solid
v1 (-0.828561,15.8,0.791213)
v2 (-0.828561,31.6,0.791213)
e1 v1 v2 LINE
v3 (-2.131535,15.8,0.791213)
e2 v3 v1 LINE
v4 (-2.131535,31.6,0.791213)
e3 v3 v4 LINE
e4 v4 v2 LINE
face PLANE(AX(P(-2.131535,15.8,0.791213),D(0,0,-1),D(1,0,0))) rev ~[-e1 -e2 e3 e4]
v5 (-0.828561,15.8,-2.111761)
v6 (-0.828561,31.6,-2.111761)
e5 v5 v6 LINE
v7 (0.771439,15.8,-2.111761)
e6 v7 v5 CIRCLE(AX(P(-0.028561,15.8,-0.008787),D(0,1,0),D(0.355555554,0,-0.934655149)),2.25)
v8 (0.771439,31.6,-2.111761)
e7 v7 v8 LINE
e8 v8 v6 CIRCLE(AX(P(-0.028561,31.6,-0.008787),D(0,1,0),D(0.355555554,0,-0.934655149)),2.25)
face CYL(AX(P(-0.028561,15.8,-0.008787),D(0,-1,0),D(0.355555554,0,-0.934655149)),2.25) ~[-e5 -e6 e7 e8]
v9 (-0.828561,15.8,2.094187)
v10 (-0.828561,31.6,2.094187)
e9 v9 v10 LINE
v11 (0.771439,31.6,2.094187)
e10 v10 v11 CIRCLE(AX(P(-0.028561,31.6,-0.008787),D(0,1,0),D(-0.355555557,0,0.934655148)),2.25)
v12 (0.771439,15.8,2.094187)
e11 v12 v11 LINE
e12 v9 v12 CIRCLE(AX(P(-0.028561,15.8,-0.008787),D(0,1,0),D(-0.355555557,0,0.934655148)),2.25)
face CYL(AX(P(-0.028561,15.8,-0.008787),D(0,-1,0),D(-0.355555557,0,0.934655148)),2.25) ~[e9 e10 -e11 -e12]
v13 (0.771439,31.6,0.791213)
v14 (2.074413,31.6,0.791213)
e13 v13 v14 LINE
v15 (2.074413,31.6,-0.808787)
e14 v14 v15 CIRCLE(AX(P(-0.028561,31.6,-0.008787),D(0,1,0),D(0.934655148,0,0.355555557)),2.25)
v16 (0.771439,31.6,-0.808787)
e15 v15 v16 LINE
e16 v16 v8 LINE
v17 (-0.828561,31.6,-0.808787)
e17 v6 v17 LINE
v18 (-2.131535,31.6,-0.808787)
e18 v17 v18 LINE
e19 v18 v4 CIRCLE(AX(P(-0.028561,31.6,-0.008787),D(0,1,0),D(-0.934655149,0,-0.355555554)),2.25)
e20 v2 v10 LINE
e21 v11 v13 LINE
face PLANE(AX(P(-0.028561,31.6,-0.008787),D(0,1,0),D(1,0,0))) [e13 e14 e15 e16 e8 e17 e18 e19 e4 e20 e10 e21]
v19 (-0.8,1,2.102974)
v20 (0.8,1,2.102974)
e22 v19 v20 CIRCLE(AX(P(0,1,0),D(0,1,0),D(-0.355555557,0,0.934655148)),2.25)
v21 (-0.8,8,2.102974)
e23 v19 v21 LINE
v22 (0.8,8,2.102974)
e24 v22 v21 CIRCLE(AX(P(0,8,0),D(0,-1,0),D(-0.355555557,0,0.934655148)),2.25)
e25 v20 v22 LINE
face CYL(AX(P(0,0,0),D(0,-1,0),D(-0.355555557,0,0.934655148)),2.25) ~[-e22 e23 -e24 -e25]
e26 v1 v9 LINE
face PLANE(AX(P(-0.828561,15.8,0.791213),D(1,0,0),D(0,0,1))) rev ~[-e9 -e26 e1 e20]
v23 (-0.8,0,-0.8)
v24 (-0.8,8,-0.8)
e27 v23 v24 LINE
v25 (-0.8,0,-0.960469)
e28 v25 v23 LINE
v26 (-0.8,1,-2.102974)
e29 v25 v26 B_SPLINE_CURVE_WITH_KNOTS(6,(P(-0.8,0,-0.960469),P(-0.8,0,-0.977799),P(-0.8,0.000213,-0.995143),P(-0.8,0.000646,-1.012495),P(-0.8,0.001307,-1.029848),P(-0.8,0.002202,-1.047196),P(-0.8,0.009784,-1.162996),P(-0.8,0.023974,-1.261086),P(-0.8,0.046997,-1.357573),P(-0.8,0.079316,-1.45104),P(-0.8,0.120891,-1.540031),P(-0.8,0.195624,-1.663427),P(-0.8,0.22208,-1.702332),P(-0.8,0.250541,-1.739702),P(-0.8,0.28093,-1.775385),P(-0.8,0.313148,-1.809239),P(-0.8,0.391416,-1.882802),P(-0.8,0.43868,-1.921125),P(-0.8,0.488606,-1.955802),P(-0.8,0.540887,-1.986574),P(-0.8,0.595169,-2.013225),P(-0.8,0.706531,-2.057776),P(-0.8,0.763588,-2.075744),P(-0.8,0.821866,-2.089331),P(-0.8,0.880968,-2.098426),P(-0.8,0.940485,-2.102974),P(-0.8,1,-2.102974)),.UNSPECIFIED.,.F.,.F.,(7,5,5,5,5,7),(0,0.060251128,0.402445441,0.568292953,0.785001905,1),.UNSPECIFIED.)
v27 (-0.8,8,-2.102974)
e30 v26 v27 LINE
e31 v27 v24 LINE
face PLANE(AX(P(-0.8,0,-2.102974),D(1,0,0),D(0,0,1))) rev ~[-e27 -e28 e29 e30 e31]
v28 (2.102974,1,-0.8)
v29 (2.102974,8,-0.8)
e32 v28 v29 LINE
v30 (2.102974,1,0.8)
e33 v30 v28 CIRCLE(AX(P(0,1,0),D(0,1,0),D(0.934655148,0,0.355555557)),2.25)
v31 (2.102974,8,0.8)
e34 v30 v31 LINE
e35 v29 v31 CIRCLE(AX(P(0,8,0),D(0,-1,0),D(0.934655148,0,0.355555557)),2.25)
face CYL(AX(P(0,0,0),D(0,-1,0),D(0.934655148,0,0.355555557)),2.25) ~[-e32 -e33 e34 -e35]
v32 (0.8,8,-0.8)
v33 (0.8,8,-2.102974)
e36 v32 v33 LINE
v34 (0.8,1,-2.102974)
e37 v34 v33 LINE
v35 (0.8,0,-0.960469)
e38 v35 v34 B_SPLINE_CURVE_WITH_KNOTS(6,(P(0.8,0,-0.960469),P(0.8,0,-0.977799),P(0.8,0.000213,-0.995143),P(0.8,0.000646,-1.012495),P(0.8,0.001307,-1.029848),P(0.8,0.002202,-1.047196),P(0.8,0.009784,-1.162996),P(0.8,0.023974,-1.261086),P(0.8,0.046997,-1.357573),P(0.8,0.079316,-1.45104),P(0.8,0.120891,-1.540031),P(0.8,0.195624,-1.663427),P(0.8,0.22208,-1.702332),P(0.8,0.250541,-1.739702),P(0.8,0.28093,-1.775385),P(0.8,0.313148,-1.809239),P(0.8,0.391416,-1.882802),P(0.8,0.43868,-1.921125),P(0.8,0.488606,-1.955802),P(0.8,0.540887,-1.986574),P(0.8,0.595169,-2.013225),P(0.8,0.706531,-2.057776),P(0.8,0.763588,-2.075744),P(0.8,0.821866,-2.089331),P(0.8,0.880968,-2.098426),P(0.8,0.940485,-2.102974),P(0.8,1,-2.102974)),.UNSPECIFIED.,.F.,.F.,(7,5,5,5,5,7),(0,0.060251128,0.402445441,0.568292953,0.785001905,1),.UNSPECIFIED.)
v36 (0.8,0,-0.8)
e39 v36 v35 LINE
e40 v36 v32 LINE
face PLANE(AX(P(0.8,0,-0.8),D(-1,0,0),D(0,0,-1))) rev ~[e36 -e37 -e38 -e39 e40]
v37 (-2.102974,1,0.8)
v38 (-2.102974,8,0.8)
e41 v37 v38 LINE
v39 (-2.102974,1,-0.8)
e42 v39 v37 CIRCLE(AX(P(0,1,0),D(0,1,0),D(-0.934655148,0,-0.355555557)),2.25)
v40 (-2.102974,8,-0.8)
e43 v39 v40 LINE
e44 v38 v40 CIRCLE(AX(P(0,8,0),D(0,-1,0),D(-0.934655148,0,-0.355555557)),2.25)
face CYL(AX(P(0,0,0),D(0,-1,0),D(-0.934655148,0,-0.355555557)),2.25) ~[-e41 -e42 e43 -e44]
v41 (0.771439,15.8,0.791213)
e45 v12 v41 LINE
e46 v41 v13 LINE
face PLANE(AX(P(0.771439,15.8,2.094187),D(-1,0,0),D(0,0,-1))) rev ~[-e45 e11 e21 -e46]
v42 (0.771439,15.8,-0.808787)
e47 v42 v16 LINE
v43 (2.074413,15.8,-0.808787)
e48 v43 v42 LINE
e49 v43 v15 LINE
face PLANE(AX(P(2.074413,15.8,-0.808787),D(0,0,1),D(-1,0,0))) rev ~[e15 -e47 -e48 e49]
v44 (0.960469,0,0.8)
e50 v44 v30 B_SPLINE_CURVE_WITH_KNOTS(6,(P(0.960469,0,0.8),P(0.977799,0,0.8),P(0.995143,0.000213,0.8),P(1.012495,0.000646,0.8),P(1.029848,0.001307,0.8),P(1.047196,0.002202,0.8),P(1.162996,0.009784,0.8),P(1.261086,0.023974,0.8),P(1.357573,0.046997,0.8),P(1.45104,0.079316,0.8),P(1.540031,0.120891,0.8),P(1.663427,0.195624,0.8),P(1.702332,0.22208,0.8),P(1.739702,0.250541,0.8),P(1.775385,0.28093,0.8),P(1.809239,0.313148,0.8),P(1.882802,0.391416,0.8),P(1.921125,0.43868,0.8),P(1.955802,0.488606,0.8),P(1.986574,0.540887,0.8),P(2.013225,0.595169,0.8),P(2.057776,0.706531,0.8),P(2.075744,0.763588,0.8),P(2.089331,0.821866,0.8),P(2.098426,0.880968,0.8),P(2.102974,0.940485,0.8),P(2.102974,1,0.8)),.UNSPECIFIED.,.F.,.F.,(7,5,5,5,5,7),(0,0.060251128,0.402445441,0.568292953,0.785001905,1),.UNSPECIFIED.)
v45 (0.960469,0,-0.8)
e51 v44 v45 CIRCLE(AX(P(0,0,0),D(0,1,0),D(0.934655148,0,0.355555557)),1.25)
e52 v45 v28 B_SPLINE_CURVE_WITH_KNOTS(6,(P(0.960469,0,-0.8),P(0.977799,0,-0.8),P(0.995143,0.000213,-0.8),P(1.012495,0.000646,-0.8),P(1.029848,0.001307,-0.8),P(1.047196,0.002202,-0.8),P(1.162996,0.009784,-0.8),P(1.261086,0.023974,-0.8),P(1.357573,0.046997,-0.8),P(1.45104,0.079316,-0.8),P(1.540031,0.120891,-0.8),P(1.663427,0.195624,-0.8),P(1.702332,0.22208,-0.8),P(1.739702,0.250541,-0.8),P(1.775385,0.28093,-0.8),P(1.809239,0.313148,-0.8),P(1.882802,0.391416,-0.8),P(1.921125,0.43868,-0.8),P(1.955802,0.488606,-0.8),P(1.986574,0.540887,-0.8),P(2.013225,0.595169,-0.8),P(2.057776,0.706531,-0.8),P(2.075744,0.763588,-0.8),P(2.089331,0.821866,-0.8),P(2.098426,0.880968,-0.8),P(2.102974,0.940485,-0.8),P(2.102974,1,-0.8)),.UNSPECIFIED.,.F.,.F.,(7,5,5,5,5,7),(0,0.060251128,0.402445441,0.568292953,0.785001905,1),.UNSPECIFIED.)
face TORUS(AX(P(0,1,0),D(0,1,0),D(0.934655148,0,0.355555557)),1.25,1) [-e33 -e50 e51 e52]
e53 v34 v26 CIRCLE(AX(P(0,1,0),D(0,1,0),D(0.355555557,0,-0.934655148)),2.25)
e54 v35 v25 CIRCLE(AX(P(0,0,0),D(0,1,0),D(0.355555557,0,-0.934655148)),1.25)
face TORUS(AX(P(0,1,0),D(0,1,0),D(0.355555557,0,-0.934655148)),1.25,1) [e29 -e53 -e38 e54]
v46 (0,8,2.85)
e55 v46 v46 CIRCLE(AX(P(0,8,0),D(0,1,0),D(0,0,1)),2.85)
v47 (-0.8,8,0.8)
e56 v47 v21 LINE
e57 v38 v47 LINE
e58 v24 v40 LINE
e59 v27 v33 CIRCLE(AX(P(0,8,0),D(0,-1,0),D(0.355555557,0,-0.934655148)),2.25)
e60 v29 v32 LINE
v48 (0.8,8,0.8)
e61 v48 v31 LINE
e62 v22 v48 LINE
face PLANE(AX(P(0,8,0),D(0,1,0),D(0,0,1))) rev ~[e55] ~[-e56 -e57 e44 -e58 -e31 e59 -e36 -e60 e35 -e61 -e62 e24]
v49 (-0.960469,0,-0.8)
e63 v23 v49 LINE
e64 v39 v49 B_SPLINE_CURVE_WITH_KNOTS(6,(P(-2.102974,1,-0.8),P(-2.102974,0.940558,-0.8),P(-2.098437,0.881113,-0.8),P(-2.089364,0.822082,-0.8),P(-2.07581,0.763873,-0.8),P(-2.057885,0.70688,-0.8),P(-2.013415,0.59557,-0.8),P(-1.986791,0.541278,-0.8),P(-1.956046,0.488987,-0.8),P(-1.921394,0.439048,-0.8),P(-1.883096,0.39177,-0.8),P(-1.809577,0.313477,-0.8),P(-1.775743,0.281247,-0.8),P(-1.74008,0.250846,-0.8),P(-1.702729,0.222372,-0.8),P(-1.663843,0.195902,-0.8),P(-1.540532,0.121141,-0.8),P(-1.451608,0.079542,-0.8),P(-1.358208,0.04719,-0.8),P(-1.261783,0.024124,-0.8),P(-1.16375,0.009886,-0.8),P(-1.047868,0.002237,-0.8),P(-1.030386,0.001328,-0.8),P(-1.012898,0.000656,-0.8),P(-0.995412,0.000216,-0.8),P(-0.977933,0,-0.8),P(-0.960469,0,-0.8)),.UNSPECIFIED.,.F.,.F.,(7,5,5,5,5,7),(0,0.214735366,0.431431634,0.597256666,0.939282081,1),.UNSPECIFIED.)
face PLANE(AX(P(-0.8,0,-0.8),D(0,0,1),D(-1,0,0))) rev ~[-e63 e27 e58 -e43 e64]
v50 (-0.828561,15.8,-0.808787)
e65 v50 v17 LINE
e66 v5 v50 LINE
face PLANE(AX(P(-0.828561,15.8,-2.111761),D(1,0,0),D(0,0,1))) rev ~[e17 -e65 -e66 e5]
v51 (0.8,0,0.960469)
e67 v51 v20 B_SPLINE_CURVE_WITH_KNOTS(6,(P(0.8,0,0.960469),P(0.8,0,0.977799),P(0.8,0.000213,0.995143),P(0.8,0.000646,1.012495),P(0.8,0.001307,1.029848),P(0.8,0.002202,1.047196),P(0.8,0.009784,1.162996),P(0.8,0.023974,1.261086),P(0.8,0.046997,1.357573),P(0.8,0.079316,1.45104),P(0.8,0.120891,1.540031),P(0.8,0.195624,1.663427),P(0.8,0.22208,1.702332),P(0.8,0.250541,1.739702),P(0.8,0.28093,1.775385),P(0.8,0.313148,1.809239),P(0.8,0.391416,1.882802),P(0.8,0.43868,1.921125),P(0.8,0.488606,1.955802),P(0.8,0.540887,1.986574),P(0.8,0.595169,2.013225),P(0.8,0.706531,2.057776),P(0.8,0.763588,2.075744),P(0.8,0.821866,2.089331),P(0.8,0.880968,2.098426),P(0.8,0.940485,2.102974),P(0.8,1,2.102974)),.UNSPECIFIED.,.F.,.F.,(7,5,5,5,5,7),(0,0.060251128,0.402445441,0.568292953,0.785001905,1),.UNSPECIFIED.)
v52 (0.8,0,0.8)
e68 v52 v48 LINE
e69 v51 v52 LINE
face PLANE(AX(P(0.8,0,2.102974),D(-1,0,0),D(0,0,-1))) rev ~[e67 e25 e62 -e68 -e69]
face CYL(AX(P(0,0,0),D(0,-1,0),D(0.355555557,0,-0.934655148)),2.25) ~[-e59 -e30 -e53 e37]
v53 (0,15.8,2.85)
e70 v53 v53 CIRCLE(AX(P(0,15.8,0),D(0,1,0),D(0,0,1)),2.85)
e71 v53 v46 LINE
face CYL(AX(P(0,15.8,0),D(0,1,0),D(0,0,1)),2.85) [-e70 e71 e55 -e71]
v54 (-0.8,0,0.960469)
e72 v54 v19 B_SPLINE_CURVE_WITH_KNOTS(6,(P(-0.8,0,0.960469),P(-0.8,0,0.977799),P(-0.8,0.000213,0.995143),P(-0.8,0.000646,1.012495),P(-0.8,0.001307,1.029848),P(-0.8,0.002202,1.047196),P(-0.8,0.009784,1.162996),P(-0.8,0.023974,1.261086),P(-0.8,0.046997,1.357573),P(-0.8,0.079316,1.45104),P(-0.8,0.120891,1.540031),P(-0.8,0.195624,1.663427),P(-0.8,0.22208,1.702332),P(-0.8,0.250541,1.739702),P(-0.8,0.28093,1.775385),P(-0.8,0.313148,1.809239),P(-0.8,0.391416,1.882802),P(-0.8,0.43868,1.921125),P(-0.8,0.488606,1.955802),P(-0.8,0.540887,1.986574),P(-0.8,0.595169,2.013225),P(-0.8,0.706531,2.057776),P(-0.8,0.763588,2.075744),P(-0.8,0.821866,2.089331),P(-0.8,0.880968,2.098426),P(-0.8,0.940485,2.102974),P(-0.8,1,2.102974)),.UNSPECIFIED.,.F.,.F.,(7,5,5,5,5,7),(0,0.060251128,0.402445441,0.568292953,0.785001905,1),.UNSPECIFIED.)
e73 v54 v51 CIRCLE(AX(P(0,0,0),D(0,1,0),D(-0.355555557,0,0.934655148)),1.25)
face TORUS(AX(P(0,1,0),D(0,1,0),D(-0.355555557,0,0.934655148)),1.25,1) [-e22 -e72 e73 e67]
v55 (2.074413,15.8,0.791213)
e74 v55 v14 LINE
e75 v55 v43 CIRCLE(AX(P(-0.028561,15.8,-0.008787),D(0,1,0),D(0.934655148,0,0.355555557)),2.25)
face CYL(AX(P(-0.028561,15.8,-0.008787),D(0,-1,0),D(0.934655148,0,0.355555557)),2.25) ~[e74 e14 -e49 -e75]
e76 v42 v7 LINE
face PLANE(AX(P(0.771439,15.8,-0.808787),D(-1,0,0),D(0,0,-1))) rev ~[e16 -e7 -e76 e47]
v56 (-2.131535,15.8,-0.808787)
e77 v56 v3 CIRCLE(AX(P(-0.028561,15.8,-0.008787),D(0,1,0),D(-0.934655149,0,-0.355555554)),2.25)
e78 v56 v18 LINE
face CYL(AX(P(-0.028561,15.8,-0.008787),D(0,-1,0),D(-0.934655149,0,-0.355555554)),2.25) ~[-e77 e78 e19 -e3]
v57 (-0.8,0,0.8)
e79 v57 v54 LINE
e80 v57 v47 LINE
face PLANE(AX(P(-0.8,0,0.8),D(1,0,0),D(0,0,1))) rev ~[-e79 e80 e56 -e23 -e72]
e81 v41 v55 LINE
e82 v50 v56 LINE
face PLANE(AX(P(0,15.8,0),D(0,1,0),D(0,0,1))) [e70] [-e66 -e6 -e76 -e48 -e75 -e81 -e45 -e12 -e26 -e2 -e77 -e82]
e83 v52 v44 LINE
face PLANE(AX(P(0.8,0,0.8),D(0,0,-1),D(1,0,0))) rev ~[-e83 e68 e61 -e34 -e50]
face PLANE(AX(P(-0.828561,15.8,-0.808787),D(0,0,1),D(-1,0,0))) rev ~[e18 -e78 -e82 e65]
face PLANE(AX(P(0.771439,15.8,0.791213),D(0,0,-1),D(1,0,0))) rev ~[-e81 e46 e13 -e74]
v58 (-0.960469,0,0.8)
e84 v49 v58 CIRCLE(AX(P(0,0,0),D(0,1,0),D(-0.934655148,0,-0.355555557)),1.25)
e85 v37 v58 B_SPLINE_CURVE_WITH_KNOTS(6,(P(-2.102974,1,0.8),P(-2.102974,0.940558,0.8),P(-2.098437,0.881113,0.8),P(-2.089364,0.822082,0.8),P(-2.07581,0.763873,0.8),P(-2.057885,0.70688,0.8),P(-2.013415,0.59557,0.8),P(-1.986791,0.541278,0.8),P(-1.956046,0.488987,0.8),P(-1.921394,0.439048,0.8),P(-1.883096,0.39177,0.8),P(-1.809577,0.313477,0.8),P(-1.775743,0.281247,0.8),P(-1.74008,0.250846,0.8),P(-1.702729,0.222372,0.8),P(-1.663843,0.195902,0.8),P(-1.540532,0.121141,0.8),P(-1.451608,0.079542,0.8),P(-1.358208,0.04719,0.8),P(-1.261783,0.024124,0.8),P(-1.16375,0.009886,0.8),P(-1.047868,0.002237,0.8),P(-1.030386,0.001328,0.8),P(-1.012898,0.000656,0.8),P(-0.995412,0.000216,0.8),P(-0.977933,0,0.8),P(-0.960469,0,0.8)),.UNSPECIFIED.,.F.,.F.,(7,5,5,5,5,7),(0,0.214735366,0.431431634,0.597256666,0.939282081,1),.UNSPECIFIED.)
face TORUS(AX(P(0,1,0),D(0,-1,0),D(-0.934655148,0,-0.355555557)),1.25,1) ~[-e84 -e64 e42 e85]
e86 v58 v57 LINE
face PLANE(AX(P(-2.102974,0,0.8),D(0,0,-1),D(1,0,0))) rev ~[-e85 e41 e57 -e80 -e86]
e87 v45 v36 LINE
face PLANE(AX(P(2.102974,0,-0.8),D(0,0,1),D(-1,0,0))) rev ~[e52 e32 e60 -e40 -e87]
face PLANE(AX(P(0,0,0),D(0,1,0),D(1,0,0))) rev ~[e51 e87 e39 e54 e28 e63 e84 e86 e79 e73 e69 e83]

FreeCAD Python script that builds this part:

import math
import FreeCAD as App
import Part
import Sketcher
from FreeCAD import Vector


def edges_at(feature, points):
    """Names of the edges that pass closest to the given points."""
    edges = feature.Shape.Edges
    near = lambda p: min(range(len(edges)), key=lambda i: edges[i].distToShape(Part.Vertex(*p))[0])
    return sorted({f"Edge{near(p) + 1}" for p in points})

doc = App.newDocument("Part")
body = doc.addObject("PartDesign::Body", "Body")

sketch1 = body.newObject("Sketcher::SketchObject", "Sketch")
sketch1.AttachmentSupport = (doc.getObject("XZ_Plane"), [""])
sketch1.MapMode = "FlatFace"
sketch1.addGeometry([
    Part.LineSegment(Vector(-0.8, 0.8, 0), Vector(-0.8, 2.1, 0)),
    Part.ArcOfCircle(Part.Circle(Vector(0, 0, 0), Vector(0, 0, 1), 2.2), math.radians(69), math.radians(111)),
    Part.LineSegment(Vector(0.8, 2.1, 0), Vector(0.8, 0.8, 0)),
    Part.LineSegment(Vector(0.8, 0.8, 0), Vector(2.1, 0.8, 0)),
    Part.ArcOfCircle(Part.Circle(Vector(0, 0, 0), Vector(0, 0, 1), 2.2), math.radians(-21), math.radians(21)),
    Part.LineSegment(Vector(2.1, -0.8, 0), Vector(0.8, -0.8, 0)),
    Part.LineSegment(Vector(0.8, -0.8, 0), Vector(0.8, -2.1, 0)),
    Part.ArcOfCircle(Part.Circle(Vector(0, 0, 0), Vector(0, 0, 1), 2.2), math.radians(-111), math.radians(-69)),
    Part.LineSegment(Vector(-0.8, -2.1, 0), Vector(-0.8, -0.8, 0)),
    Part.LineSegment(Vector(-0.8, -0.8, 0), Vector(-2.1, -0.8, 0)),
    Part.ArcOfCircle(Part.Circle(Vector(0, 0, 0), Vector(0, 0, 1), 2.2), math.radians(159), math.radians(201)),
    Part.LineSegment(Vector(-2.1, 0.8, 0), Vector(-0.8, 0.8, 0)),
], False)
sketch1.addConstraint([
    Sketcher.Constraint("Coincident", 0, 2, 1, 2),
    Sketcher.Constraint("Coincident", 1, 1, 2, 1),
    Sketcher.Constraint("Coincident", 2, 2, 3, 1),
    Sketcher.Constraint("Coincident", 3, 2, 4, 2),
    Sketcher.Constraint("Coincident", 4, 1, 5, 1),
    Sketcher.Constraint("Coincident", 5, 2, 6, 1),
    Sketcher.Constraint("Coincident", 6, 2, 7, 2),
    Sketcher.Constraint("Coincident", 7, 1, 8, 1),
    Sketcher.Constraint("Coincident", 8, 2, 9, 1),
    Sketcher.Constraint("Coincident", 9, 2, 10, 2),
    Sketcher.Constraint("Coincident", 10, 1, 11, 1),
    Sketcher.Constraint("Coincident", 11, 2, 0, 1),
    Sketcher.Constraint("Vertical", 0),
    Sketcher.Constraint("Vertical", 2),
    Sketcher.Constraint("Horizontal", 3),
    Sketcher.Constraint("Horizontal", 5),
    Sketcher.Constraint("Vertical", 6),
    Sketcher.Constraint("Vertical", 8),
    Sketcher.Constraint("Horizontal", 9),
    Sketcher.Constraint("Horizontal", 11),
    Sketcher.Constraint("Coincident", 1, 3, -1, 1),
    Sketcher.Constraint("Coincident", 4, 3, -1, 1),
    Sketcher.Constraint("Coincident", 7, 3, -1, 1),
    Sketcher.Constraint("Coincident", 10, 3, -1, 1),
    Sketcher.Constraint("Equal", 1, 4),
    Sketcher.Constraint("Equal", 4, 7),
    Sketcher.Constraint("Equal", 7, 10),
    Sketcher.Constraint("Symmetric", 2, 2, 8, 2, -1, 1),
    Sketcher.Constraint("Symmetric", 5, 2, 11, 2, -1, 1),
    Sketcher.Constraint("Symmetric", 5, 2, 8, 2, -2),
    Sketcher.Constraint("Equal", 11, 0),
    Sketcher.Constraint("Radius", 1, 2.25),
    Sketcher.Constraint("DistanceX", 0, 2, -1, 1, 0.8),
])
pad1 = body.newObject("PartDesign::Pad", "Pad")
pad1.Profile = sketch1
pad1.Length = 15.8
pad1.Reversed = True
doc.recompute()

fillet = body.newObject("PartDesign::Fillet", "Fillet")
fillet.Base = (pad1, edges_at(pad1, [(-2.25, 0, 0)]))
fillet.Radius = 1
doc.recompute()

fillet2 = body.newObject("PartDesign::Fillet", "Fillet001")
fillet2.Base = (fillet, edges_at(fillet, [(0, 0, 2.25)]))
fillet2.Radius = 1
doc.recompute()

fillet3 = body.newObject("PartDesign::Fillet", "Fillet002")
fillet3.Base = (fillet2, edges_at(fillet2, [(2.25, 0, 0)]))
fillet3.Radius = 1
doc.recompute()

fillet4 = body.newObject("PartDesign::Fillet", "Fillet003")
fillet4.Base = (fillet3, edges_at(fillet3, [(0, 0, -2.25)]))
fillet4.Radius = 1

sketch2 = body.newObject("Sketcher::SketchObject", "Sketch001")
sketch2.AttachmentSupport = (doc.getObject("XZ_Plane"), [""])
sketch2.MapMode = "FlatFace"
sketch2.AttachmentOffset = App.Placement(Vector(0, 0, -15.8), App.Rotation())
sketch2.addGeometry(Part.Circle(Vector(0, 0, 0), Vector(0, 0, 1), 2.9), False)
sketch2.addConstraint([
    Sketcher.Constraint("Coincident", 0, 3, -1, 1),
    Sketcher.Constraint("Diameter", 0, 5.7),
])
pad2 = body.newObject("PartDesign::Pad", "Pad001")
pad2.Profile = sketch2
pad2.Length = 7.8

sketch3 = body.newObject("Sketcher::SketchObject", "Sketch002")
sketch3.AttachmentSupport = (doc.getObject("XZ_Plane"), [""])
sketch3.MapMode = "FlatFace"
sketch3.AttachmentOffset = App.Placement(Vector(0, 0, -15.8), App.Rotation())
sketch3.addGeometry([
    Part.LineSegment(Vector(-0.8, 0.8, 0), Vector(-0.8, 2.1, 0)),
    Part.ArcOfCircle(Part.Circle(Vector(0, 0, 0), Vector(0, 0, 1), 2.2), math.radians(69), math.radians(111)),
    Part.LineSegment(Vector(0.8, 2.1, 0), Vector(0.8, 0.8, 0)),
    Part.LineSegment(Vector(0.8, 0.8, 0), Vector(2.1, 0.8, 0)),
    Part.ArcOfCircle(Part.Circle(Vector(0, 0, 0), Vector(0, 0, 1), 2.2), math.radians(-21), math.radians(21)),
    Part.LineSegment(Vector(2.1, -0.8, 0), Vector(0.8, -0.8, 0)),
    Part.LineSegment(Vector(0.8, -0.8, 0), Vector(0.8, -2.1, 0)),
    Part.ArcOfCircle(Part.Circle(Vector(0, 0, 0), Vector(0, 0, 1), 2.3), math.radians(-111), math.radians(-69)),
    Part.LineSegment(Vector(-0.8, -2.1, 0), Vector(-0.8, -0.8, 0)),
    Part.LineSegment(Vector(-0.8, -0.8, 0), Vector(-2.1, -0.8, 0)),
    Part.ArcOfCircle(Part.Circle(Vector(0, 0, 0), Vector(0, 0, 1), 2.3), math.radians(159), math.radians(201)),
    Part.LineSegment(Vector(-2.1, 0.8, 0), Vector(-0.8, 0.8, 0)),
], False)
sketch3.addConstraint([
    Sketcher.Constraint("Coincident", 0, 2, 1, 2),
    Sketcher.Constraint("Coincident", 1, 1, 2, 1),
    Sketcher.Constraint("Coincident", 2, 2, 3, 1),
    Sketcher.Constraint("Coincident", 3, 2, 4, 2),
    Sketcher.Constraint("Coincident", 4, 1, 5, 1),
    Sketcher.Constraint("Coincident", 5, 2, 6, 1),
    Sketcher.Constraint("Coincident", 6, 2, 7, 2),
    Sketcher.Constraint("Coincident", 7, 1, 8, 1),
    Sketcher.Constraint("Coincident", 8, 2, 9, 1),
    Sketcher.Constraint("Coincident", 9, 2, 10, 2),
    Sketcher.Constraint("Coincident", 10, 1, 11, 1),
    Sketcher.Constraint("Coincident", 11, 2, 0, 1),
    Sketcher.Constraint("Vertical", 0),
    Sketcher.Constraint("Vertical", 2),
    Sketcher.Constraint("Horizontal", 3),
    Sketcher.Constraint("Horizontal", 5),
    Sketcher.Constraint("Vertical", 6),
    Sketcher.Constraint("Vertical", 8),
    Sketcher.Constraint("Horizontal", 9),
    Sketcher.Constraint("Horizontal", 11),
    Sketcher.Constraint("Coincident", 4, 3, 1, 3),
    Sketcher.Constraint("Coincident", 7, 3, 1, 3),
    Sketcher.Constraint("Coincident", 10, 3, 1, 3),
    Sketcher.Constraint("Equal", 1, 4),
    Sketcher.Constraint("Equal", 4, 7),
    Sketcher.Constraint("Equal", 7, 10),
    Sketcher.Constraint("Horizontal", 0, 2, 1, 1),
    Sketcher.Constraint("Horizontal", 6, 2, 7, 1),
    Sketcher.Constraint("Horizontal", 5, 2, 8, 2),
    Sketcher.Constraint("Horizontal", 3, 2, 10, 1),
    Sketcher.Constraint("Vertical", 3, 2, 4, 1),
    Sketcher.Constraint("Vertical", 2, 2, 5, 2),
    Sketcher.Constraint("Equal", 11, 0),
    Sketcher.Constraint("Radius", 1, 2.25),
    Sketcher.Constraint("DistanceX", 0, 2, 1, 3, 0.8),
    Sketcher.Constraint("DistanceX", 1, 3, -1, 1, 0.028561),
    Sketcher.Constraint("DistanceY", 6, 2, -1, 1, 2.111761),
])
pad3 = body.newObject("PartDesign::Pad", "Pad002")
pad3.Profile = sketch3
pad3.Length = 15.8
pad3.Reversed = True

doc.recompute()
